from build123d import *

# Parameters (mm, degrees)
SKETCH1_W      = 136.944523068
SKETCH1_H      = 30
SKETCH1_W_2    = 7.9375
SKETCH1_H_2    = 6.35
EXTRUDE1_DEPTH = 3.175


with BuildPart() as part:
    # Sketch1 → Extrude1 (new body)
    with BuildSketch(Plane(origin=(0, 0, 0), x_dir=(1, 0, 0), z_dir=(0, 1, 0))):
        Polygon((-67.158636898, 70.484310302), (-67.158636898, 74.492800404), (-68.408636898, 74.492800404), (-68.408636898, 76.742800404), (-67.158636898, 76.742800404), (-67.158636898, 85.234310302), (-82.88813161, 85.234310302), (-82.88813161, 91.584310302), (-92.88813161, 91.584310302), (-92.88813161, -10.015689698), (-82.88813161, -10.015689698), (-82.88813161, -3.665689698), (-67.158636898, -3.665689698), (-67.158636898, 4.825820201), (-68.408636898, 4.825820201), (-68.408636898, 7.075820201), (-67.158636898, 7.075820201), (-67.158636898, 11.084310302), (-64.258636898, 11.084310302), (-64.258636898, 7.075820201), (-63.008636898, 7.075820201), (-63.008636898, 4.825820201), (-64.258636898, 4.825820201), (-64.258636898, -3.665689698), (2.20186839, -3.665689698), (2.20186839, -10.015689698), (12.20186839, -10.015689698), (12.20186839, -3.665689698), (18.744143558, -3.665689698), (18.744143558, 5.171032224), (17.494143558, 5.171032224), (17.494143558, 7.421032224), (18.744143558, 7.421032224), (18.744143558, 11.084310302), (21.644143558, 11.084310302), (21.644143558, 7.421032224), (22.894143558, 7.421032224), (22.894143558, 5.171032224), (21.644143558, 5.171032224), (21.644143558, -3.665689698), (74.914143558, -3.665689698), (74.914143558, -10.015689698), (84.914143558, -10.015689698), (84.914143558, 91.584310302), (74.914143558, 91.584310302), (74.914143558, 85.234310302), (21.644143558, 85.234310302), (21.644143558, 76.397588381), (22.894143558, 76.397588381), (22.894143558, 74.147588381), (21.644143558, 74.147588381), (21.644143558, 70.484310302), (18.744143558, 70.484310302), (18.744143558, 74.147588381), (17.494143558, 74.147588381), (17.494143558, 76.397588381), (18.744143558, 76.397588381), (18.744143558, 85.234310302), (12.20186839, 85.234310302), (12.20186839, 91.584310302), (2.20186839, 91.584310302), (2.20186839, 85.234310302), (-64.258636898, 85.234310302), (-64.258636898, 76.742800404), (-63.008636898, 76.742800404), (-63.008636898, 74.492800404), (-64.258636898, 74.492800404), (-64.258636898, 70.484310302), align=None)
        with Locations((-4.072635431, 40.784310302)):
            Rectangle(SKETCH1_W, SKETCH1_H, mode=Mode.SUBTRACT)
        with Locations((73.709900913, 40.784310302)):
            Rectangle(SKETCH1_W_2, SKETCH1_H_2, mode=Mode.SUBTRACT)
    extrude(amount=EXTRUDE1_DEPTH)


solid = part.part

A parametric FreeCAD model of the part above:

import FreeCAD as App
import Part
import Sketcher

V = App.Vector
Q = App.Units.Quantity


def add_polygon(sketch, points):
    """Adds a closed chain of lines whose ends are joined by coincident constraints."""
    first, n = sketch.GeometryCount, len(points)
    for a, b in zip(points, points[1:] + points[:1]):
        sketch.addGeometry(Part.LineSegment(App.Vector(*a, 0), App.Vector(*b, 0)), False)
    for i in range(n):
        sketch.addConstraint(Sketcher.Constraint("Coincident", first + i, 2, first + (i + 1) % n, 1))

doc = App.newDocument("Part")
body = doc.addObject("PartDesign::Body", "Body")

# Sketch on XZ plane
sketch1 = body.newObject("Sketcher::SketchObject", "Sketch")
sketch1.AttachmentSupport = (doc.getObject("XZ_Plane"), [""])
sketch1.MapMode = "FlatFace"
add_polygon(sketch1, [(-67.2, -70.5), (-67.2, -74.5), (-68.4, -74.5), (-68.4, -76.7), (-67.2, -76.7), (-67.2, -85.2), (-82.9, -85.2), (-82.9, -91.6), (-92.9, -91.6), (-92.9, 10), (-82.9, 10), (-82.9, 3.7), (-67.2, 3.7), (-67.2, -4.8), (-68.4, -4.8), (-68.4, -7.1), (-67.2, -7.1), (-67.2, -11.1), (-64.3, -11.1), (-64.3, -7.1), (-63, -7.1), (-63, -4.8), (-64.3, -4.8), (-64.3, 3.7), (2.2, 3.7), (2.2, 10), (12.2, 10), (12.2, 3.7), (18.7, 3.7), (18.7, -5.2), (17.5, -5.2), (17.5, -7.4), (18.7, -7.4), (18.7, -11.1), (21.6, -11.1), (21.6, -7.4), (22.9, -7.4), (22.9, -5.2), (21.6, -5.2), (21.6, 3.7), (74.9, 3.7), (74.9, 10), (84.9, 10), (84.9, -91.6), (74.9, -91.6), (74.9, -85.2), (21.6, -85.2), (21.6, -76.4), (22.9, -76.4), (22.9, -74.1), (21.6, -74.1), (21.6, -70.5), (18.7, -70.5), (18.7, -74.1), (17.5, -74.1), (17.5, -76.4), (18.7, -76.4), (18.7, -85.2), (12.2, -85.2), (12.2, -91.6), (2.2, -91.6), (2.2, -85.2), (-64.3, -85.2), (-64.3, -76.7), (-63, -76.7), (-63, -74.5), (-64.3, -74.5), (-64.3, -70.5)])  # lines 0-67
add_polygon(sketch1, [(64.4, -25.8), (-72.5, -25.8), (-72.5, -55.8), (64.4, -55.8)])  # lines 68-71
add_polygon(sketch1, [(77.7, -37.6), (69.7, -37.6), (69.7, -44), (77.7, -44)])  # lines 72-75
sketch1.addConstraint([
    Sketcher.Constraint("Vertical", 0),
    Sketcher.Constraint("Horizontal", 1),
    Sketcher.Constraint("Vertical", 2),
    Sketcher.Constraint("Horizontal", 3),
    Sketcher.Constraint("Vertical", 4),
    Sketcher.Constraint("Horizontal", 5),
    Sketcher.Constraint("Vertical", 6),
    Sketcher.Constraint("Horizontal", 7),
    Sketcher.Constraint("Vertical", 8),
    Sketcher.Constraint("Horizontal", 9),
    Sketcher.Constraint("Vertical", 10),
    Sketcher.Constraint("Horizontal", 11),
    Sketcher.Constraint("Vertical", 12),
    Sketcher.Constraint("Horizontal", 13),
    Sketcher.Constraint("Vertical", 14),
    Sketcher.Constraint("Horizontal", 15),
    Sketcher.Constraint("Vertical", 16),
    Sketcher.Constraint("Horizontal", 17),
    Sketcher.Constraint("Vertical", 18),
    Sketcher.Constraint("Horizontal", 19),
    Sketcher.Constraint("Vertical", 20),
    Sketcher.Constraint("Horizontal", 21),
    Sketcher.Constraint("Vertical", 22),
    Sketcher.Constraint("Horizontal", 23),
    Sketcher.Constraint("Vertical", 24),
    Sketcher.Constraint("Horizontal", 25),
    Sketcher.Constraint("Vertical", 26),
    Sketcher.Constraint("Horizontal", 27),
    Sketcher.Constraint("Vertical", 28),
    Sketcher.Constraint("Horizontal", 29),
    Sketcher.Constraint("Vertical", 30),
    Sketcher.Constraint("Horizontal", 31),
    Sketcher.Constraint("Vertical", 32),
    Sketcher.Constraint("Horizontal", 33),
    Sketcher.Constraint("Vertical", 34),
    Sketcher.Constraint("Horizontal", 35),
    Sketcher.Constraint("Vertical", 36),
    Sketcher.Constraint("Horizontal", 37),
    Sketcher.Constraint("Vertical", 38),
    Sketcher.Constraint("Horizontal", 39),
    Sketcher.Constraint("Vertical", 40),
    Sketcher.Constraint("Horizontal", 41),
    Sketcher.Constraint("Vertical", 42),
    Sketcher.Constraint("Horizontal", 43),
    Sketcher.Constraint("Vertical", 44),
    Sketcher.Constraint("Horizontal", 45),
    Sketcher.Constraint("Vertical", 46),
    Sketcher.Constraint("Horizontal", 47),
    Sketcher.Constraint("Vertical", 48),
    Sketcher.Constraint("Horizontal", 49),
    Sketcher.Constraint("Vertical", 50),
    Sketcher.Constraint("Horizontal", 51),
    Sketcher.Constraint("Vertical", 52),
    Sketcher.Constraint("Horizontal", 53),
    Sketcher.Constraint("Vertical", 54),
    Sketcher.Constraint("Horizontal", 55),
    Sketcher.Constraint("Vertical", 56),
    Sketcher.Constraint("Horizontal", 57),
    Sketcher.Constraint("Vertical", 58),
    Sketcher.Constraint("Horizontal", 59),
    Sketcher.Constraint("Vertical", 60),
    Sketcher.Constraint("Horizontal", 61),
    Sketcher.Constraint("Vertical", 62),
    Sketcher.Constraint("Horizontal", 63),
    Sketcher.Constraint("Vertical", 64),
    Sketcher.Constraint("Horizontal", 65),
    Sketcher.Constraint("Vertical", 66),
    Sketcher.Constraint("Horizontal", 67),
    Sketcher.Constraint("Horizontal", 68),
    Sketcher.Constraint("Vertical", 69),
    Sketcher.Constraint("Horizontal", 70),
    Sketcher.Constraint("Vertical", 71),
    Sketcher.Constraint("Horizontal", 72),
    Sketcher.Constraint("Vertical", 73),
    Sketcher.Constraint("Horizontal", 74),
    Sketcher.Constraint("Vertical", 75),
    Sketcher.Constraint("Horizontal", 15, 2, 18, 2),
    Sketcher.Constraint("Horizontal", 13, 2, 20, 2),
    Sketcher.Constraint("Horizontal", 11, 2, 22, 2),
    Sketcher.Constraint("Horizontal", 9, 2, 24, 2),
    Sketcher.Constraint("Horizontal", 23, 2, 26, 2),
    Sketcher.Constraint("Horizontal", 17, 2, 32, 2),
    Sketcher.Constraint("Horizontal", 31, 2, 34, 2),
    Sketcher.Constraint("Horizontal", 29, 2, 36, 2),
    Sketcher.Constraint("Horizontal", 27, 2, 38, 2),
    Sketcher.Constraint("Horizontal", 25, 2, 40, 2),
    Sketcher.Constraint("Horizontal", 7, 2, 42, 2),
    Sketcher.Constraint("Horizontal", 5, 2, 44, 2),
    Sketcher.Constraint("Horizontal", 49, 2, 52, 2),
    Sketcher.Constraint("Horizontal", 47, 2, 54, 2),
    Sketcher.Constraint("Horizontal", 45, 2, 56, 2),
    Sketcher.Constraint("Horizontal", 43, 2, 58, 2),
    Sketcher.Constraint("Horizontal", 57, 2, 60, 2),
    Sketcher.Constraint("Horizontal", 3, 2, 62, 2),
    Sketcher.Constraint("Horizontal", 1, 2, 64, 2),
    Sketcher.Constraint("Horizontal", 51, 2, 66, 2),
    Sketcher.Constraint("Vertical", 0, 2, 3, 2),
    Sketcher.Constraint("Vertical", 6, 2, 9, 2),
    Sketcher.Constraint("Vertical", 4, 2, 11, 2),
    Sketcher.Constraint("Vertical", 2, 2, 13, 2),
    Sketcher.Constraint("Vertical", 12, 2, 15, 2),
    Sketcher.Constraint("Vertical", 18, 2, 21, 2),
    Sketcher.Constraint("Vertical", 28, 2, 31, 2),
    Sketcher.Constraint("Vertical", 34, 2, 37, 2),
    Sketcher.Constraint("Vertical", 40, 2, 43, 2),
    Sketcher.Constraint("Vertical", 38, 2, 45, 2),
    Sketcher.Constraint("Vertical", 36, 2, 47, 2),
    Sketcher.Constraint("Vertical", 46, 2, 49, 2),
    Sketcher.Constraint("Vertical", 32, 2, 51, 2),
    Sketcher.Constraint("Vertical", 30, 2, 53, 2),
    Sketcher.Constraint("Vertical", 52, 2, 55, 2),
    Sketcher.Constraint("Vertical", 26, 2, 57, 2),
    Sketcher.Constraint("Vertical", 24, 2, 59, 2),
    Sketcher.Constraint("Vertical", 22, 2, 61, 2),
    Sketcher.Constraint("Vertical", 20, 2, 63, 2),
    Sketcher.Constraint("Vertical", 62, 2, 65, 2),
    Sketcher.Constraint("Equal", 15, 19),
    Sketcher.Constraint("Equal", 9, 25),
    Sketcher.Constraint("Equal", 21, 29),
    Sketcher.Constraint("Equal", 17, 33),
    Sketcher.Constraint("Equal", 31, 35),
    Sketcher.Constraint("Equal", 25, 41),
    Sketcher.Constraint("Equal", 6, 10),
    Sketcher.Constraint("Equal", 4, 12),
    Sketcher.Constraint("Equal", 2, 14),
    Sketcher.Constraint("Equal", 0, 16),
    Sketcher.Constraint("Equal", 20, 30),
    Sketcher.Constraint("Equal", 38, 46),
    Sketcher.Constraint("Equal", 36, 48),
    Sketcher.Constraint("Equal", 60, 73),
    Sketcher.Constraint("DistanceY", 8, 1, 8, 2, Q("4 in")),
    Sketcher.Constraint("DistanceY", 6, 2, 6, 1, Q("0.25 in")),
    Sketcher.Constraint("DistanceX", 72, 2, 72, 1, Q("0.3125 in")),
    Sketcher.Constraint("DistanceX", 1, 2, 1, 1, Q("1.25 mm")),
    Sketcher.Constraint("DistanceX", 7, 2, 7, 1, Q("10 mm")),
    Sketcher.Constraint("DistanceX", 17, 1, 17, 2, Q("2.9 mm")),
    Sketcher.Constraint("DistanceX", 39, 1, 39, 2, Q("53.27 mm")),
    Sketcher.Constraint("DistanceY", 2, 2, 2, 1, Q("2.25 mm")),
    Sketcher.Constraint("DistanceY", 69, 2, 69, 1, Q("30 mm")),
    Sketcher.Constraint("DistanceY", 0, 2, 0, 1, Q("4.00849 mm")),
    Sketcher.Constraint("DistanceY", 4, 2, 4, 1, Q("8.49151 mm")),
    Sketcher.Constraint("DistanceY", 28, 2, 28, 1, Q("8.836722 mm")),
    Sketcher.Constraint("DistanceY", 0, 2, -1, 1, Q("74.4928 mm")),
    Sketcher.Constraint("DistanceX", 5, 2, 5, 1, Q("15.729495 mm")),
    Sketcher.Constraint("DistanceX", 23, 1, 23, 2, Q("66.460505 mm")),
    Sketcher.Constraint("DistanceX", 27, 1, 27, 2, Q("6.542275 mm")),
    Sketcher.Constraint("DistanceX", 68, 2, 68, 1, Q("136.944523 mm")),
    Sketcher.Constraint("DistanceX", 5, 2, -1, 1, Q("82.888132 mm")),
    Sketcher.Constraint("DistanceY", 68, 2, -1, 1, Q("25.78431 mm")),
    Sketcher.Constraint("DistanceX", -1, 1, 72, 2, Q("69.741151 mm")),
    Sketcher.Constraint("DistanceY", 72, 2, -1, 1, Q("37.60931 mm")),
    Sketcher.Constraint("DistanceX", 68, 2, -1, 1, Q("72.544897 mm")),
])
pad1 = body.newObject("PartDesign::Pad", "Pad")
pad1.Profile = sketch1
pad1.Length = Q("0.125 in")
pad1.Reversed = True

doc.recompute()
